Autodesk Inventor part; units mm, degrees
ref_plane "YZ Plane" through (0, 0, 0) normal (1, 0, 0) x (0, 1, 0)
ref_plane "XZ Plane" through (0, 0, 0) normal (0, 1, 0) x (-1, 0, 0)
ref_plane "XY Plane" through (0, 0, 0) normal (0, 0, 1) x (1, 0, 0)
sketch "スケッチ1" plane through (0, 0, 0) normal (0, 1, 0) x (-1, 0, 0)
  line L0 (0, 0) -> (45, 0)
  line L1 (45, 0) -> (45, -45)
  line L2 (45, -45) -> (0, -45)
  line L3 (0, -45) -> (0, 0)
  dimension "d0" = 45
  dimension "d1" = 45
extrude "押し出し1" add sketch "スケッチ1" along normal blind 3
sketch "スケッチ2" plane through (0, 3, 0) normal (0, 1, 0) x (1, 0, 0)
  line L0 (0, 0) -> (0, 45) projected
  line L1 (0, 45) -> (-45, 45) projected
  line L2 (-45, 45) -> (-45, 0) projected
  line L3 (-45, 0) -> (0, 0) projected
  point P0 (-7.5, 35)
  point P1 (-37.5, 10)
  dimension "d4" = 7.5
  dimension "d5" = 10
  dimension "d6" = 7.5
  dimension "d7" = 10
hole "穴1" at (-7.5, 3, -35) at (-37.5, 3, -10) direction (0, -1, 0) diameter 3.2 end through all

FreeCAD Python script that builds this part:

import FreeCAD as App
import Part
import Sketcher

V = App.Vector
Q = App.Units.Quantity

doc = App.newDocument("Part")
params = doc.addObject("Spreadsheet::Sheet", "Params")
for row, (alias, value) in enumerate([
    ("sketch1_width", "45 mm"),
    ("pad1_length", "3 mm"),
    ("sketch2_diameter", "3.2 mm"),
    ("hole_diameter", "3.2 mm"),
], start=1):
    params.set(f"A{row}", alias)
    params.set(f"B{row}", "=" + value)
    params.setAlias(f"B{row}", alias)

body = doc.addObject("PartDesign::Body", "Body")

sketch1 = body.newObject("Sketcher::SketchObject", "Sketch")
sketch1.AttachmentSupport = (doc.getObject("XZ_Plane"), [""])
sketch1.MapMode = "FlatFace"
sketch1.addGeometry(Part.LineSegment(V(-45, 0, 0), V(0, 0, 0)), False)
sketch1.addGeometry(Part.LineSegment(V(0, 0, 0), V(0, -45, 0)), False)
sketch1.addGeometry(Part.LineSegment(V(0, -45, 0), V(-45, -45, 0)), False)
sketch1.addGeometry(Part.LineSegment(V(-45, -45, 0), V(-45, 0, 0)), False)
sketch1.addConstraint(Sketcher.Constraint("Coincident", 0, 2, 1, 1))
sketch1.addConstraint(Sketcher.Constraint("Coincident", 1, 2, 2, 1))
sketch1.addConstraint(Sketcher.Constraint("Coincident", 2, 2, 3, 1))
sketch1.addConstraint(Sketcher.Constraint("Coincident", 3, 2, 0, 1))
sketch1.addConstraint(Sketcher.Constraint("Horizontal", 0))
sketch1.addConstraint(Sketcher.Constraint("Vertical", 1))
sketch1.addConstraint(Sketcher.Constraint("Horizontal", 2))
sketch1.addConstraint(Sketcher.Constraint("Vertical", 3))
sketch1.addConstraint(Sketcher.Constraint("Coincident", 0, 2, -1, 1))
sketch1.addConstraint(Sketcher.Constraint("Equal", 2, 1))
sketch1.addConstraint(Sketcher.Constraint("DistanceX", 0, 1, 0, 2, Q("45 mm")))
sketch1.setExpression("Constraints[10]", "Params.sketch1_width")
pad1 = body.newObject("PartDesign::Pad", "Pad")
pad1.Profile = sketch1
pad1.setExpression("Length", "Params.pad1_length")
pad1.Reversed = True

sketch2 = body.newObject("Sketcher::SketchObject", "Sketch001")
sketch2.AttachmentSupport = (doc.getObject("XZ_Plane"), [""])
sketch2.MapMode = "FlatFace"
sketch2.AttachmentOffset = App.Placement(V(0, 0, -3), App.Rotation())
sketch2.addGeometry(Part.Circle(V(-7.5, -35, 0), V(0, 0, 1), 1.6), False)
sketch2.addGeometry(Part.Circle(V(-37.5, -10, 0), V(0, 0, 1), 1.6), False)
sketch2.addConstraint(Sketcher.Constraint("Equal", 0, 1))
sketch2.addConstraint(Sketcher.Constraint("Diameter", 0, Q("3.2 mm")))
sketch2.addConstraint(Sketcher.Constraint("DistanceY", 0, 3, -1, 1, Q("35 mm")))
sketch2.addConstraint(Sketcher.Constraint("DistanceY", 1, 3, -1, 1, Q("10 mm")))
sketch2.addConstraint(Sketcher.Constraint("DistanceX", 1, 3, 0, 3, Q("30 mm")))
sketch2.addConstraint(Sketcher.Constraint("DistanceX", 0, 3, -1, 1, Q("7.5 mm")))
sketch2.setExpression("Constraints[1]", "Params.sketch2_diameter")
doc.recompute()
hole = body.newObject("PartDesign::Hole", "Hole")
hole.Profile = sketch2
hole.ThreadType = "None"
hole.setExpression("Diameter", "Params.hole_diameter")
hole.DepthType = "ThroughAll"
hole.Reversed = True

doc.recompute()
